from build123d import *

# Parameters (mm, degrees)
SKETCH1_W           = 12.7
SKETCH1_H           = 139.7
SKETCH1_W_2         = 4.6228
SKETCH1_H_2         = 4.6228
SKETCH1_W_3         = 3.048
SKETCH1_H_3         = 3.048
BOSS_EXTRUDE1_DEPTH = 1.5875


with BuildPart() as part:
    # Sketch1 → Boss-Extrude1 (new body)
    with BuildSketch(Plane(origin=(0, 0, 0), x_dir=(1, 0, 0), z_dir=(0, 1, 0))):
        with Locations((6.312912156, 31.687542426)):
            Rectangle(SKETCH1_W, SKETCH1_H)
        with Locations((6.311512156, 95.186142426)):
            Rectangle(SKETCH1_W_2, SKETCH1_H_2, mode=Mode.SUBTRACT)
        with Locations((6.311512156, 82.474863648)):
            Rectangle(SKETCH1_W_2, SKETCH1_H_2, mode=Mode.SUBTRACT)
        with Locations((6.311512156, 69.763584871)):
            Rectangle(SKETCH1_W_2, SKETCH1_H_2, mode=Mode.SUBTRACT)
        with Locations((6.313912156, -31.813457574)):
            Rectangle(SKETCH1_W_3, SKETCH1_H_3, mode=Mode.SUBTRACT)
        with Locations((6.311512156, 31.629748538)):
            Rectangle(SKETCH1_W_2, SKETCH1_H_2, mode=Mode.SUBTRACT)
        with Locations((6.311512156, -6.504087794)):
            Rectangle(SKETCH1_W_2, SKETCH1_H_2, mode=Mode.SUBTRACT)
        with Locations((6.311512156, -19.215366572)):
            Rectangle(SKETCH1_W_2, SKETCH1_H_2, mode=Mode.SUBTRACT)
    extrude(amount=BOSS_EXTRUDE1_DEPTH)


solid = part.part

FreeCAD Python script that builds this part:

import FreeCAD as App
import Part
import Sketcher
from FreeCAD import Vector
Q = App.Units.Quantity


def add_polygon(sketch, points):
    """Adds a closed chain of lines whose ends are joined by coincident constraints."""
    first, n = sketch.GeometryCount, len(points)
    for a, b in zip(points, points[1:] + points[:1]):
        sketch.addGeometry(Part.LineSegment(App.Vector(*a, 0), App.Vector(*b, 0)), False)
    for i in range(n):
        sketch.addConstraint(Sketcher.Constraint("Coincident", first + i, 2, first + (i + 1) % n, 1))

doc = App.newDocument("Part")
body = doc.addObject("PartDesign::Body", "Body")

sketch1 = body.newObject("Sketcher::SketchObject", "Sketch")
sketch1.AttachmentSupport = (doc.getObject("XZ_Plane"), [""])
sketch1.MapMode = "FlatFace"
add_polygon(sketch1, [(0, -101.5), (0, 38.2), (12.7, 38.2), (12.7, -101.5)])
add_polygon(sketch1, [(7.8, 33.3), (4.8, 33.3), (4.8, 30.3), (7.8, 30.3)])
add_polygon(sketch1, [(8.6, 21.5), (4, 21.5), (4, 16.9), (8.6, 16.9)])
add_polygon(sketch1, [(8.6, 8.8), (4, 8.8), (4, 4.2), (8.6, 4.2)])
add_polygon(sketch1, [(8.6, -29.3), (4, -29.3), (4, -33.9), (8.6, -33.9)])
add_polygon(sketch1, [(8.6, -67.5), (4, -67.5), (4, -72.1), (8.6, -72.1)])
add_polygon(sketch1, [(8.6, -80.2), (4, -80.2), (4, -84.8), (8.6, -84.8)])
add_polygon(sketch1, [(8.6, -92.9), (4, -92.9), (4, -97.5), (8.6, -97.5)])
sketch1.addConstraint(Sketcher.Constraint("Vertical", 0))
sketch1.addConstraint(Sketcher.Constraint("Horizontal", 1))
sketch1.addConstraint(Sketcher.Constraint("Vertical", 2))
sketch1.addConstraint(Sketcher.Constraint("Horizontal", 3))
sketch1.addConstraint(Sketcher.Constraint("Horizontal", 4))
sketch1.addConstraint(Sketcher.Constraint("Vertical", 5))
sketch1.addConstraint(Sketcher.Constraint("Horizontal", 6))
sketch1.addConstraint(Sketcher.Constraint("Vertical", 7))
sketch1.addConstraint(Sketcher.Constraint("Horizontal", 8))
sketch1.addConstraint(Sketcher.Constraint("Vertical", 9))
sketch1.addConstraint(Sketcher.Constraint("Horizontal", 10))
sketch1.addConstraint(Sketcher.Constraint("Vertical", 11))
sketch1.addConstraint(Sketcher.Constraint("Horizontal", 12))
sketch1.addConstraint(Sketcher.Constraint("Vertical", 13))
sketch1.addConstraint(Sketcher.Constraint("Horizontal", 14))
sketch1.addConstraint(Sketcher.Constraint("Vertical", 15))
sketch1.addConstraint(Sketcher.Constraint("Horizontal", 16))
sketch1.addConstraint(Sketcher.Constraint("Vertical", 17))
sketch1.addConstraint(Sketcher.Constraint("Horizontal", 18))
sketch1.addConstraint(Sketcher.Constraint("Vertical", 19))
sketch1.addConstraint(Sketcher.Constraint("Horizontal", 20))
sketch1.addConstraint(Sketcher.Constraint("Vertical", 21))
sketch1.addConstraint(Sketcher.Constraint("Horizontal", 22))
sketch1.addConstraint(Sketcher.Constraint("Vertical", 23))
sketch1.addConstraint(Sketcher.Constraint("Horizontal", 24))
sketch1.addConstraint(Sketcher.Constraint("Vertical", 25))
sketch1.addConstraint(Sketcher.Constraint("Horizontal", 26))
sketch1.addConstraint(Sketcher.Constraint("Vertical", 27))
sketch1.addConstraint(Sketcher.Constraint("Horizontal", 28))
sketch1.addConstraint(Sketcher.Constraint("Vertical", 29))
sketch1.addConstraint(Sketcher.Constraint("Horizontal", 30))
sketch1.addConstraint(Sketcher.Constraint("Vertical", 31))
sketch1.addConstraint(Sketcher.Constraint("Vertical", 9, 2, 12, 2))
sketch1.addConstraint(Sketcher.Constraint("Vertical", 11, 2, 14, 2))
sketch1.addConstraint(Sketcher.Constraint("Vertical", 13, 2, 16, 2))
sketch1.addConstraint(Sketcher.Constraint("Vertical", 15, 2, 18, 2))
sketch1.addConstraint(Sketcher.Constraint("Vertical", 17, 2, 20, 2))
sketch1.addConstraint(Sketcher.Constraint("Vertical", 19, 2, 22, 2))
sketch1.addConstraint(Sketcher.Constraint("Vertical", 21, 2, 24, 2))
sketch1.addConstraint(Sketcher.Constraint("Vertical", 23, 2, 26, 2))
sketch1.addConstraint(Sketcher.Constraint("Vertical", 25, 2, 28, 2))
sketch1.addConstraint(Sketcher.Constraint("Vertical", 27, 2, 30, 2))
sketch1.addConstraint(Sketcher.Constraint("Equal", 6, 5))
sketch1.addConstraint(Sketcher.Constraint("Equal", 30, 9))
sketch1.addConstraint(Sketcher.Constraint("Equal", 11, 13))
sketch1.addConstraint(Sketcher.Constraint("Equal", 15, 17))
sketch1.addConstraint(Sketcher.Constraint("Equal", 19, 21))
sketch1.addConstraint(Sketcher.Constraint("Equal", 23, 25))
sketch1.addConstraint(Sketcher.Constraint("Equal", 27, 29))
sketch1.addConstraint(Sketcher.Constraint("DistanceX", 1, 1, 1, 2, Q("0.5 in")))
sketch1.addConstraint(Sketcher.Constraint("DistanceY", 0, 1, 0, 2, Q("5.5 in")))
sketch1.addConstraint(Sketcher.Constraint("DistanceX", 4, 2, 4, 1, Q("0.12 in")))
sketch1.addConstraint(Sketcher.Constraint("DistanceX", 8, 2, 8, 1, Q("0.182 in")))
sketch1.addConstraint(Sketcher.Constraint("DistanceX", 0, 2, 4, 2, Q("4.827 mm")))
sketch1.addConstraint(Sketcher.Constraint("DistanceY", 4, 2, 0, 2, Q("4.825 mm")))
sketch1.addConstraint(Sketcher.Constraint("DistanceX", 8, 2, 5, 2, Q("0.7898 mm")))
sketch1.addConstraint(Sketcher.Constraint("DistanceY", 3, 2, 28, 2, Q("8.6628 mm")))
sketch1.addConstraint(Sketcher.Constraint("DistanceY", 16, 2, -1, 1, Q("29.318349 mm")))
sketch1.addConstraint(Sketcher.Constraint("DistanceY", 8, 2, 5, 2, Q("8.762691 mm")))
sketch1.addConstraint(Sketcher.Constraint("DistanceY", 12, 2, 9, 2, Q("8.088479 mm")))
sketch1.addConstraint(Sketcher.Constraint("DistanceY", 24, 2, 21, 2, Q("8.088479 mm")))
sketch1.addConstraint(Sketcher.Constraint("DistanceY", 3, 2, 24, 2, Q("21.374079 mm")))
sketch1.addConstraint(Sketcher.Constraint("DistanceX", 0, 2, -1, 1, Q("0.037088 mm")))
sketch1.addConstraint(Sketcher.Constraint("DistanceY", -1, 1, 0, 2, Q("38.162458 mm")))
pad1 = body.newObject("PartDesign::Pad", "Pad")
pad1.Profile = sketch1
pad1.Length = Q("0.0625 in")
pad1.Reversed = True

doc.recompute()
